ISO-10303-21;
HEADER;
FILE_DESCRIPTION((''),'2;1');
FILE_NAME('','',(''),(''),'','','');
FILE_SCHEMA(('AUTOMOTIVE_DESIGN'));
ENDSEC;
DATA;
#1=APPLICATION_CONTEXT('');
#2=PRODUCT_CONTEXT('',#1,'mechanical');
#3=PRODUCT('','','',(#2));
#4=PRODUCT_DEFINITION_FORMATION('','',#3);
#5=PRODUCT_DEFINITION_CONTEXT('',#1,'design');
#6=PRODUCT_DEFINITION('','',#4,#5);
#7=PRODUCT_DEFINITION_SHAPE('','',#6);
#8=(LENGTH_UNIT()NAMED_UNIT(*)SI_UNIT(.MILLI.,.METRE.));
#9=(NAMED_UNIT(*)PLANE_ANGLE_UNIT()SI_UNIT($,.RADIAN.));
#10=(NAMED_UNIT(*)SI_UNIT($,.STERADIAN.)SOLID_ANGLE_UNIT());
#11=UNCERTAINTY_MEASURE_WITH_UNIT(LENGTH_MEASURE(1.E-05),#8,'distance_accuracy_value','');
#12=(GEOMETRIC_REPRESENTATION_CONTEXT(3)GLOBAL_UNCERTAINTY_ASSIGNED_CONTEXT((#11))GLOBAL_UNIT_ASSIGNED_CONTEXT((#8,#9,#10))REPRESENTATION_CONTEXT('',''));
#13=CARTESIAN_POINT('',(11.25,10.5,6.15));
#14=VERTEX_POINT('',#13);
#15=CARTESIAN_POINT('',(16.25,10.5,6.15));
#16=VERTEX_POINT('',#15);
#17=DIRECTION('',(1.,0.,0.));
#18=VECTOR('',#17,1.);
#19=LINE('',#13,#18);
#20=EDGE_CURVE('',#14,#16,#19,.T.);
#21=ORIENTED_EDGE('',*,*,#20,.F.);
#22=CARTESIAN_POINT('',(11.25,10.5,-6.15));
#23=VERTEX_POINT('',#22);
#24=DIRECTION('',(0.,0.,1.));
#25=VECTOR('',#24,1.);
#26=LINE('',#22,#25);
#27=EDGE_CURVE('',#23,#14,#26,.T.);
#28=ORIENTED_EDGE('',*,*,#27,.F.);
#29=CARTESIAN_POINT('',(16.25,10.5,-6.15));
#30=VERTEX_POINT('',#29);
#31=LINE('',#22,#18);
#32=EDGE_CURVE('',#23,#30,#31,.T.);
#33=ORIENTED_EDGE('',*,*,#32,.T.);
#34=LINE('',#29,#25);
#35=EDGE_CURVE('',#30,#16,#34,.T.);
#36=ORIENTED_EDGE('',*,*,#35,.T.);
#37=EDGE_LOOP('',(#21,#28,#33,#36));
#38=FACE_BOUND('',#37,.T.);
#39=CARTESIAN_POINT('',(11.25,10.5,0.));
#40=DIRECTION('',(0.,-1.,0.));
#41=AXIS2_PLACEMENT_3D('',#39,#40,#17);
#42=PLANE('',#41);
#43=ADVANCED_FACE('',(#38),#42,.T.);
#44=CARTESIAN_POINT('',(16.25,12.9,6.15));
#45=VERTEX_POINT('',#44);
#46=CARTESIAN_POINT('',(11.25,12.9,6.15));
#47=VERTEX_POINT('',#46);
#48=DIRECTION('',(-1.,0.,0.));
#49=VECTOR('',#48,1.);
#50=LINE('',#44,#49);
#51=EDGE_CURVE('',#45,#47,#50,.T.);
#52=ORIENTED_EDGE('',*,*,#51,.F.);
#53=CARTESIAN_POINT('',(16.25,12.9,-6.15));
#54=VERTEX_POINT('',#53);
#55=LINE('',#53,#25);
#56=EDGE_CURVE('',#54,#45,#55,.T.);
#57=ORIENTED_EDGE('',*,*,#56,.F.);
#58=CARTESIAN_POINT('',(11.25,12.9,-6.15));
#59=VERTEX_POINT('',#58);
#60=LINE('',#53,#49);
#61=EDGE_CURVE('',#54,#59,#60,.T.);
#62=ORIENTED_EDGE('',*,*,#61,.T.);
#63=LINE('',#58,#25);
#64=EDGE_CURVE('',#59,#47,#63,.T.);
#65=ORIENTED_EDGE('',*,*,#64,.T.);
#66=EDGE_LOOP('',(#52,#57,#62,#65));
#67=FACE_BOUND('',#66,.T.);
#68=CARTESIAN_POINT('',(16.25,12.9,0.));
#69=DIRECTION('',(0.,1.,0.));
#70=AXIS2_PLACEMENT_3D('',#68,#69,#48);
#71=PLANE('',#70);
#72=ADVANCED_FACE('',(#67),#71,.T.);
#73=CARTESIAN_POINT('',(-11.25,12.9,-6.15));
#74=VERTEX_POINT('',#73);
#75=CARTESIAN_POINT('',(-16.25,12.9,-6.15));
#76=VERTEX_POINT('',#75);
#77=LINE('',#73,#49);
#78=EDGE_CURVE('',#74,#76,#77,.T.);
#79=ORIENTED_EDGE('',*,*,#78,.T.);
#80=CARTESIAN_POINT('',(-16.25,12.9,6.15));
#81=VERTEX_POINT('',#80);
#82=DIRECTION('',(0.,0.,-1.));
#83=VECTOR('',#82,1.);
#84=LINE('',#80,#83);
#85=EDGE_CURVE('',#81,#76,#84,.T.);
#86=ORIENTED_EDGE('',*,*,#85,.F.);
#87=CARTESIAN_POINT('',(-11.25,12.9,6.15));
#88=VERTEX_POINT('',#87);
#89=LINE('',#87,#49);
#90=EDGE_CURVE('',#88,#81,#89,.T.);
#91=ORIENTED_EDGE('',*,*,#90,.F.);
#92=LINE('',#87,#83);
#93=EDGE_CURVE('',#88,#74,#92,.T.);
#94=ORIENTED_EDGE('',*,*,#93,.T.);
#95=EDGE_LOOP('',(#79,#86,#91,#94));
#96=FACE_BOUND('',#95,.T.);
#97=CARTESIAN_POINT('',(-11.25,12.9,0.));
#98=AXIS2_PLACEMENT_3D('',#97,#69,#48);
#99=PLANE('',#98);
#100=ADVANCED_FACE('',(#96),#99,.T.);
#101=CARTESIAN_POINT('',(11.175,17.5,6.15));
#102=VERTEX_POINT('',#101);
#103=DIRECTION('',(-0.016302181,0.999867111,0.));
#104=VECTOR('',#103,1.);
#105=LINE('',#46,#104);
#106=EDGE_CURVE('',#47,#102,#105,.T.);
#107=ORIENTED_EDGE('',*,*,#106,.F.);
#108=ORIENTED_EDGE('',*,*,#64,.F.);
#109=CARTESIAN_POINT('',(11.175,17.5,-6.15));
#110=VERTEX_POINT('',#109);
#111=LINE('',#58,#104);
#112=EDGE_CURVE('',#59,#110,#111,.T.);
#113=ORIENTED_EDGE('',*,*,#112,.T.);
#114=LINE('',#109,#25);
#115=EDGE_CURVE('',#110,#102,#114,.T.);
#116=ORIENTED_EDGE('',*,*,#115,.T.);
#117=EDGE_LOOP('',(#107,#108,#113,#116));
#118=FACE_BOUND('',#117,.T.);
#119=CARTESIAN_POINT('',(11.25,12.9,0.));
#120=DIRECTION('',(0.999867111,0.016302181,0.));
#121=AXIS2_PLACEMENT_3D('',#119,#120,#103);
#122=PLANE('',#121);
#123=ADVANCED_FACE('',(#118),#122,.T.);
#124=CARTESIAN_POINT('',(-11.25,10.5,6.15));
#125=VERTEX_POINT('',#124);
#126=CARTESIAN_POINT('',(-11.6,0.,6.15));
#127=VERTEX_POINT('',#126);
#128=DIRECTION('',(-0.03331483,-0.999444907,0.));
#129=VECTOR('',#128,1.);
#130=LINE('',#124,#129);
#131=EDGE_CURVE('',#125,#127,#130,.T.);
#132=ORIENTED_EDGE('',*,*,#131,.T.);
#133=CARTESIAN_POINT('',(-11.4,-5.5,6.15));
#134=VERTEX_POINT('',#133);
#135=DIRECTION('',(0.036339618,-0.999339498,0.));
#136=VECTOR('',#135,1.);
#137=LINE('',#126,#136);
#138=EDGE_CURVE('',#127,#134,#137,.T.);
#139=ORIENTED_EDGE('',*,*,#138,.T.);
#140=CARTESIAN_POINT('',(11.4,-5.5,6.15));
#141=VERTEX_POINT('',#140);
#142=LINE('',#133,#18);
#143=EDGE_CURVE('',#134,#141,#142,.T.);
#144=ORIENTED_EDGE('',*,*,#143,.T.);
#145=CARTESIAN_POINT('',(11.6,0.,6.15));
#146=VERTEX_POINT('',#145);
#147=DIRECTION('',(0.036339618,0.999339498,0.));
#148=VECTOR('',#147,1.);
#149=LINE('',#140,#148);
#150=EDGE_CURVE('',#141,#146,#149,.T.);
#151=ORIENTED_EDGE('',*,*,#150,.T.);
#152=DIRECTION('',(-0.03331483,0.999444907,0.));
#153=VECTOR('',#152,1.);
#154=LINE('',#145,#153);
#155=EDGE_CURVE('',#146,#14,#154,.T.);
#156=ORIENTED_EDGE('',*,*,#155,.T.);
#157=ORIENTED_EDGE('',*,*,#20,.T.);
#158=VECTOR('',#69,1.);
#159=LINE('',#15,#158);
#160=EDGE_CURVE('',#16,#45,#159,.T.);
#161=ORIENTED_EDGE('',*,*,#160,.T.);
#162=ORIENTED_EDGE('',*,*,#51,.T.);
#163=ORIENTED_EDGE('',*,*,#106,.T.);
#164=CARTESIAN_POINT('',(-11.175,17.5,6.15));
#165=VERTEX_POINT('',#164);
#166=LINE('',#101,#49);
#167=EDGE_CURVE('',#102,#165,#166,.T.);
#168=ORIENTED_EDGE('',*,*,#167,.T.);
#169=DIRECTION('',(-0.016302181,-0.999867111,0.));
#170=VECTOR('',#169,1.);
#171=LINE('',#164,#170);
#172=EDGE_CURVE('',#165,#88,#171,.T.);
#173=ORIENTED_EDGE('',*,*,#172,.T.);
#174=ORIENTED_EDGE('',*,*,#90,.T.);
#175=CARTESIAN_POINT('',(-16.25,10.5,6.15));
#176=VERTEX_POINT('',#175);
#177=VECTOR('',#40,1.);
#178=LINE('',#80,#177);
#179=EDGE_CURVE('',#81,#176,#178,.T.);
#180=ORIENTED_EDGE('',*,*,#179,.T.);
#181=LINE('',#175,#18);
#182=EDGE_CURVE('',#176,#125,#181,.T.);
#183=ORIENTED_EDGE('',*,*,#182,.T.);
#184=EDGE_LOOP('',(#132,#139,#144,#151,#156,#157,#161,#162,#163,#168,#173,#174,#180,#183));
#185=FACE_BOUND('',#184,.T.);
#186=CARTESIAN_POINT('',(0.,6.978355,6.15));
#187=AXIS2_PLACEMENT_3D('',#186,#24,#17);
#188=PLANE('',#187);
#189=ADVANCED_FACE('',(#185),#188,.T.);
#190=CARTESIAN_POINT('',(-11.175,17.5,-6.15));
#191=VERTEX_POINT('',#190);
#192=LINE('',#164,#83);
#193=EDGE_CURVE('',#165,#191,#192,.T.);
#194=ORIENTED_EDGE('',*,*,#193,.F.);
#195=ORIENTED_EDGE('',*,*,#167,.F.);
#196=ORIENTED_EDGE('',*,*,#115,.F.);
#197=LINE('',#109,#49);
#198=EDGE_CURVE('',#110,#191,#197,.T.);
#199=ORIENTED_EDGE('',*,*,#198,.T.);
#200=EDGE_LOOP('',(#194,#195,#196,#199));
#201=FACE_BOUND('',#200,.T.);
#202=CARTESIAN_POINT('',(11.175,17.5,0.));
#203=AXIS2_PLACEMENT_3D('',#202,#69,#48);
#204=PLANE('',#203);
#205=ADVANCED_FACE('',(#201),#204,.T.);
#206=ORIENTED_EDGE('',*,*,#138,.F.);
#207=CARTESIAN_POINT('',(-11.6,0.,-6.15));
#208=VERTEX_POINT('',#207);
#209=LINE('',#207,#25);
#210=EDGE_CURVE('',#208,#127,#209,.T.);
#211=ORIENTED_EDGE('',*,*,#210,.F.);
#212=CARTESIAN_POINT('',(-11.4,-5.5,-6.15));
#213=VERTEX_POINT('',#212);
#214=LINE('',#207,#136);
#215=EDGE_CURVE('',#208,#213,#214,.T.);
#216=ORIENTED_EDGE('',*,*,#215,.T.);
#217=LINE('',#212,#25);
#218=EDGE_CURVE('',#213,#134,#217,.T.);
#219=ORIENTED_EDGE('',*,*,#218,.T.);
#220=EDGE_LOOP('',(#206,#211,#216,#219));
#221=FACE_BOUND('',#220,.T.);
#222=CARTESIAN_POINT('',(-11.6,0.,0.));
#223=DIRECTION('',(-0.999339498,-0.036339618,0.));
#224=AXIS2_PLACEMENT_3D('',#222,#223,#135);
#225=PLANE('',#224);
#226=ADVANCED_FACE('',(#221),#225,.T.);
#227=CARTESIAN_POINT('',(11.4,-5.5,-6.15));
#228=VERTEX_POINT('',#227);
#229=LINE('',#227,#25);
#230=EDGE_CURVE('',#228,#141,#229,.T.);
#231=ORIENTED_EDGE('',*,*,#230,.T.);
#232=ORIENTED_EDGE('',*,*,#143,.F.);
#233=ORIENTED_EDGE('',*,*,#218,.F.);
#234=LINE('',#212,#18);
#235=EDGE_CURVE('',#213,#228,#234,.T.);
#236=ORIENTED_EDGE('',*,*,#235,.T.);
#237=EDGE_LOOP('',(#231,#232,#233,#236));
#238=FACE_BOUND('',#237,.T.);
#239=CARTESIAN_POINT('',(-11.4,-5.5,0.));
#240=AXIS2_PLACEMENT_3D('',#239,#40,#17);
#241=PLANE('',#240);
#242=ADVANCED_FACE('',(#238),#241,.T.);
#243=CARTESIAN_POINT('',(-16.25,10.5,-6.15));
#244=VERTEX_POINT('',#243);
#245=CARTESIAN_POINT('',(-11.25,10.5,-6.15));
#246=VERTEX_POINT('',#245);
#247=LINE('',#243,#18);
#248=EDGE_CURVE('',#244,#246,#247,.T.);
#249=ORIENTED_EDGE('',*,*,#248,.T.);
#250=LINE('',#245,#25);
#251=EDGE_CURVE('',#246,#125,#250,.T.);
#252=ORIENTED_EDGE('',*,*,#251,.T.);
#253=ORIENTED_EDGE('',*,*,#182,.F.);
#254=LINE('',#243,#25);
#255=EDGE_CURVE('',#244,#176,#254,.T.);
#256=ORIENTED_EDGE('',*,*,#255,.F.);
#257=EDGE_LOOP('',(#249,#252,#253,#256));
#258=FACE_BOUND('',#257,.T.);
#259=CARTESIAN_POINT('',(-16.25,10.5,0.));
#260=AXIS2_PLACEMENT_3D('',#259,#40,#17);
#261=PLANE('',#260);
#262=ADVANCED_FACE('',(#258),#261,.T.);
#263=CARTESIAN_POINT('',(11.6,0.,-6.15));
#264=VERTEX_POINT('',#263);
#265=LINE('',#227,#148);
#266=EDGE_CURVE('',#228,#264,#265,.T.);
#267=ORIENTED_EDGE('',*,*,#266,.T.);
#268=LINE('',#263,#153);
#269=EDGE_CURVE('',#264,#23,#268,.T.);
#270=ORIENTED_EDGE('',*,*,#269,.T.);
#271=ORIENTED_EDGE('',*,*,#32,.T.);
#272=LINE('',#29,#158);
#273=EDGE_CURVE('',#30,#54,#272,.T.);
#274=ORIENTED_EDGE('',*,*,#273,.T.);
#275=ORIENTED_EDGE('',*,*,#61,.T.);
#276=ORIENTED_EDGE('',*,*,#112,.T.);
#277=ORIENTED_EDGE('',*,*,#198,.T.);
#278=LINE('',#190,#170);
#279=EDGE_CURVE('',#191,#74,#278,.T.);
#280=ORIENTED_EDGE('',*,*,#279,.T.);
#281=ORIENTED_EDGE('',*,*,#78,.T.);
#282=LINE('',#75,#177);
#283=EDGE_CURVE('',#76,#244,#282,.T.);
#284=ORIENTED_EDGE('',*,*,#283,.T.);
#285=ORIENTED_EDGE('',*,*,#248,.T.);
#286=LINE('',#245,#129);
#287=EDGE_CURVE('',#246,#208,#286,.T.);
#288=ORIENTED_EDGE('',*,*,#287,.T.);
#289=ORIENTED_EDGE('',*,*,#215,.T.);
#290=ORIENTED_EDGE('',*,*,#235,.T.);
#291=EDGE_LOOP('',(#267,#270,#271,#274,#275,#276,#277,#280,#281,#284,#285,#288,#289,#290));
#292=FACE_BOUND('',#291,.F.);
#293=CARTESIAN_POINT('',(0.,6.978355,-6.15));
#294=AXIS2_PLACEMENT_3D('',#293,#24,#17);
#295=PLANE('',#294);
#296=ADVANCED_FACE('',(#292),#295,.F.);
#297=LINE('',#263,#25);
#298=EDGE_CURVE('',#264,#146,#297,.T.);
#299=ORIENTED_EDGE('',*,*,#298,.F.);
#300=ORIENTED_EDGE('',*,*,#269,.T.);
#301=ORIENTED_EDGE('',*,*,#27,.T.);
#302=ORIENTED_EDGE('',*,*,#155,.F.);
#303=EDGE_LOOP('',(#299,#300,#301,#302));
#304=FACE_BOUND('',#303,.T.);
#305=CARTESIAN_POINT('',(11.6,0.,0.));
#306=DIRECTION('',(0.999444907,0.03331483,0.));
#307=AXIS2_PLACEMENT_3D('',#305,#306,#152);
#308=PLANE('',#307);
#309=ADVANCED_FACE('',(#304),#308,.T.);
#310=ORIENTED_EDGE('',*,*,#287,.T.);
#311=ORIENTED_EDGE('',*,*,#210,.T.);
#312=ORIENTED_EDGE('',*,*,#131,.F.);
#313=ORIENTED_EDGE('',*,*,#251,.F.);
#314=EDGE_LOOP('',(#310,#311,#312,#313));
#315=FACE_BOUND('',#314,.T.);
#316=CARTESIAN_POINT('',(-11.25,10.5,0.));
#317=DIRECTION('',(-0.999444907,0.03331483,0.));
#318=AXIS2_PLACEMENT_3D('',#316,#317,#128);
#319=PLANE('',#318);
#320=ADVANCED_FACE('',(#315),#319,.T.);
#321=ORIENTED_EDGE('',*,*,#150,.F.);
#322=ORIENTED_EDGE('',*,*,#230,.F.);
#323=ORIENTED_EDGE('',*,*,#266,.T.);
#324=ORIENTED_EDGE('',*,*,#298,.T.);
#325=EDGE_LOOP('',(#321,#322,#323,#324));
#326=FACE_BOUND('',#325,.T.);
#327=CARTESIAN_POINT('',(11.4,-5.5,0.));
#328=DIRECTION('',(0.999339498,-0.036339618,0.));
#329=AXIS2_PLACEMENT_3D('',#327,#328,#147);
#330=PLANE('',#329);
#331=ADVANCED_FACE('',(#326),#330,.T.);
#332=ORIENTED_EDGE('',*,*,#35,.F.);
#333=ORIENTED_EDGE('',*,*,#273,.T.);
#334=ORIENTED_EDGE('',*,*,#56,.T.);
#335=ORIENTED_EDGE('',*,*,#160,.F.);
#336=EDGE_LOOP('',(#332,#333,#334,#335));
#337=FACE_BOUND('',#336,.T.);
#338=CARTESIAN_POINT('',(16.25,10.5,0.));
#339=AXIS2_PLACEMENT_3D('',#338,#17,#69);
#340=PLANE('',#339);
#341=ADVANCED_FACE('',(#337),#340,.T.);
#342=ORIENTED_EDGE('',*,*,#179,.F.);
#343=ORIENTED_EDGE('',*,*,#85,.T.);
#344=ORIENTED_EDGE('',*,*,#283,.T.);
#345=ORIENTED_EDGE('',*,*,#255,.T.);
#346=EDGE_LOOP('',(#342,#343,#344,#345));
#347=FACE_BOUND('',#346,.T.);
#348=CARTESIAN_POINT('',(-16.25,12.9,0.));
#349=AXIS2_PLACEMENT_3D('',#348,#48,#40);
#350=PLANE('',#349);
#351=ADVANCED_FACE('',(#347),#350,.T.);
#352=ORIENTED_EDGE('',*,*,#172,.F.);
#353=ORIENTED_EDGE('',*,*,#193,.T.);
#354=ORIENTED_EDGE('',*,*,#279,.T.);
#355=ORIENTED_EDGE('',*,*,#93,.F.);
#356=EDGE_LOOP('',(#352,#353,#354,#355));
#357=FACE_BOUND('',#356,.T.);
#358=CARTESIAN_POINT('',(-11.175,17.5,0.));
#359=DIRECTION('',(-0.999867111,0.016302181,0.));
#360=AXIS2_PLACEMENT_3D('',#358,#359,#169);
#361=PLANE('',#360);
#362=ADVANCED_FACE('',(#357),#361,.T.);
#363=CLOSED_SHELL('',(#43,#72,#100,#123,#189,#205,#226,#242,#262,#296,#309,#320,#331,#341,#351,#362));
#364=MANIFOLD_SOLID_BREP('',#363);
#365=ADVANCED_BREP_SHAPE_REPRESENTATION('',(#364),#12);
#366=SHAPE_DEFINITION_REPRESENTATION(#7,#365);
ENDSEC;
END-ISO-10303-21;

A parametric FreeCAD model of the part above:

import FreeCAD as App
import Part
import Sketcher


def add_polygon(sketch, points):
    """Adds a closed chain of lines whose ends are joined by coincident constraints."""
    first, n = sketch.GeometryCount, len(points)
    for a, b in zip(points, points[1:] + points[:1]):
        sketch.addGeometry(Part.LineSegment(App.Vector(*a, 0), App.Vector(*b, 0)), False)
    for i in range(n):
        sketch.addConstraint(Sketcher.Constraint("Coincident", first + i, 2, first + (i + 1) % n, 1))

doc = App.newDocument("Part")
body = doc.addObject("PartDesign::Body", "Body")

sketch1 = body.newObject("Sketcher::SketchObject", "Sketch")
sketch1.AttachmentSupport = (doc.getObject("XY_Plane"), [""])
sketch1.MapMode = "FlatFace"
add_polygon(sketch1, [(-16.25, 12.9), (-16.25, 10.5), (-11.25, 10.5), (-11.6, 0), (-11.4, -5.5), (11.4, -5.5), (11.6, 0), (11.25, 10.5), (16.25, 10.5), (16.25, 12.9), (11.25, 12.9), (11.175, 17.5), (-11.175, 17.5), (-11.25, 12.9)])
sketch1.addConstraint(Sketcher.Constraint("Vertical", 0))
sketch1.addConstraint(Sketcher.Constraint("Horizontal", 1))
sketch1.addConstraint(Sketcher.Constraint("Horizontal", 4))
sketch1.addConstraint(Sketcher.Constraint("Horizontal", 7))
sketch1.addConstraint(Sketcher.Constraint("Vertical", 8))
sketch1.addConstraint(Sketcher.Constraint("Horizontal", 9))
sketch1.addConstraint(Sketcher.Constraint("Horizontal", 11))
sketch1.addConstraint(Sketcher.Constraint("Horizontal", 13))
sketch1.addConstraint(Sketcher.Constraint("Symmetric", 2, 2, 5, 2, -1, 1))
sketch1.addConstraint(Sketcher.Constraint("Symmetric", 1, 2, 6, 2, -2))
sketch1.addConstraint(Sketcher.Constraint("Symmetric", 9, 2, 12, 2, -2))
sketch1.addConstraint(Sketcher.Constraint("PointOnObject", 2, 2, -1))
sketch1.addConstraint(Sketcher.Constraint("Vertical", 6, 2, 9, 2))
sketch1.addConstraint(Sketcher.Constraint("Equal", 1, 7))
sketch1.addConstraint(Sketcher.Constraint("Equal", 3, 5))
sketch1.addConstraint(Sketcher.Constraint("Equal", 10, 12))
sketch1.addConstraint(Sketcher.Constraint("DistanceX", 1, 1, 1, 2, 5.0))
sketch1.addConstraint(Sketcher.Constraint("DistanceX", 4, 1, 4, 2, 22.8))
sketch1.addConstraint(Sketcher.Constraint("DistanceY", 0, 2, 0, 1, 2.4))
sketch1.addConstraint(Sketcher.Constraint("DistanceY", 3, 2, 1, 2, 16.0))
sketch1.addConstraint(Sketcher.Constraint("DistanceX", 2, 2, 4, 2, 23.0))
sketch1.addConstraint(Sketcher.Constraint("DistanceY", 6, 2, 10, 2, 7.0))
sketch1.addConstraint(Sketcher.Constraint("DistanceX", 11, 2, 11, 1, 22.35))
sketch1.addConstraint(Sketcher.Constraint("DistanceY", -1, 1, 0, 2, 10.5))
sketch1.addConstraint(Sketcher.Constraint("DistanceX", 1, 2, 6, 2, 22.5))
pad1 = body.newObject("PartDesign::Pad", "Pad")
pad1.Profile = sketch1
pad1.Length = 12.3
pad1.Midplane = True

doc.recompute()
